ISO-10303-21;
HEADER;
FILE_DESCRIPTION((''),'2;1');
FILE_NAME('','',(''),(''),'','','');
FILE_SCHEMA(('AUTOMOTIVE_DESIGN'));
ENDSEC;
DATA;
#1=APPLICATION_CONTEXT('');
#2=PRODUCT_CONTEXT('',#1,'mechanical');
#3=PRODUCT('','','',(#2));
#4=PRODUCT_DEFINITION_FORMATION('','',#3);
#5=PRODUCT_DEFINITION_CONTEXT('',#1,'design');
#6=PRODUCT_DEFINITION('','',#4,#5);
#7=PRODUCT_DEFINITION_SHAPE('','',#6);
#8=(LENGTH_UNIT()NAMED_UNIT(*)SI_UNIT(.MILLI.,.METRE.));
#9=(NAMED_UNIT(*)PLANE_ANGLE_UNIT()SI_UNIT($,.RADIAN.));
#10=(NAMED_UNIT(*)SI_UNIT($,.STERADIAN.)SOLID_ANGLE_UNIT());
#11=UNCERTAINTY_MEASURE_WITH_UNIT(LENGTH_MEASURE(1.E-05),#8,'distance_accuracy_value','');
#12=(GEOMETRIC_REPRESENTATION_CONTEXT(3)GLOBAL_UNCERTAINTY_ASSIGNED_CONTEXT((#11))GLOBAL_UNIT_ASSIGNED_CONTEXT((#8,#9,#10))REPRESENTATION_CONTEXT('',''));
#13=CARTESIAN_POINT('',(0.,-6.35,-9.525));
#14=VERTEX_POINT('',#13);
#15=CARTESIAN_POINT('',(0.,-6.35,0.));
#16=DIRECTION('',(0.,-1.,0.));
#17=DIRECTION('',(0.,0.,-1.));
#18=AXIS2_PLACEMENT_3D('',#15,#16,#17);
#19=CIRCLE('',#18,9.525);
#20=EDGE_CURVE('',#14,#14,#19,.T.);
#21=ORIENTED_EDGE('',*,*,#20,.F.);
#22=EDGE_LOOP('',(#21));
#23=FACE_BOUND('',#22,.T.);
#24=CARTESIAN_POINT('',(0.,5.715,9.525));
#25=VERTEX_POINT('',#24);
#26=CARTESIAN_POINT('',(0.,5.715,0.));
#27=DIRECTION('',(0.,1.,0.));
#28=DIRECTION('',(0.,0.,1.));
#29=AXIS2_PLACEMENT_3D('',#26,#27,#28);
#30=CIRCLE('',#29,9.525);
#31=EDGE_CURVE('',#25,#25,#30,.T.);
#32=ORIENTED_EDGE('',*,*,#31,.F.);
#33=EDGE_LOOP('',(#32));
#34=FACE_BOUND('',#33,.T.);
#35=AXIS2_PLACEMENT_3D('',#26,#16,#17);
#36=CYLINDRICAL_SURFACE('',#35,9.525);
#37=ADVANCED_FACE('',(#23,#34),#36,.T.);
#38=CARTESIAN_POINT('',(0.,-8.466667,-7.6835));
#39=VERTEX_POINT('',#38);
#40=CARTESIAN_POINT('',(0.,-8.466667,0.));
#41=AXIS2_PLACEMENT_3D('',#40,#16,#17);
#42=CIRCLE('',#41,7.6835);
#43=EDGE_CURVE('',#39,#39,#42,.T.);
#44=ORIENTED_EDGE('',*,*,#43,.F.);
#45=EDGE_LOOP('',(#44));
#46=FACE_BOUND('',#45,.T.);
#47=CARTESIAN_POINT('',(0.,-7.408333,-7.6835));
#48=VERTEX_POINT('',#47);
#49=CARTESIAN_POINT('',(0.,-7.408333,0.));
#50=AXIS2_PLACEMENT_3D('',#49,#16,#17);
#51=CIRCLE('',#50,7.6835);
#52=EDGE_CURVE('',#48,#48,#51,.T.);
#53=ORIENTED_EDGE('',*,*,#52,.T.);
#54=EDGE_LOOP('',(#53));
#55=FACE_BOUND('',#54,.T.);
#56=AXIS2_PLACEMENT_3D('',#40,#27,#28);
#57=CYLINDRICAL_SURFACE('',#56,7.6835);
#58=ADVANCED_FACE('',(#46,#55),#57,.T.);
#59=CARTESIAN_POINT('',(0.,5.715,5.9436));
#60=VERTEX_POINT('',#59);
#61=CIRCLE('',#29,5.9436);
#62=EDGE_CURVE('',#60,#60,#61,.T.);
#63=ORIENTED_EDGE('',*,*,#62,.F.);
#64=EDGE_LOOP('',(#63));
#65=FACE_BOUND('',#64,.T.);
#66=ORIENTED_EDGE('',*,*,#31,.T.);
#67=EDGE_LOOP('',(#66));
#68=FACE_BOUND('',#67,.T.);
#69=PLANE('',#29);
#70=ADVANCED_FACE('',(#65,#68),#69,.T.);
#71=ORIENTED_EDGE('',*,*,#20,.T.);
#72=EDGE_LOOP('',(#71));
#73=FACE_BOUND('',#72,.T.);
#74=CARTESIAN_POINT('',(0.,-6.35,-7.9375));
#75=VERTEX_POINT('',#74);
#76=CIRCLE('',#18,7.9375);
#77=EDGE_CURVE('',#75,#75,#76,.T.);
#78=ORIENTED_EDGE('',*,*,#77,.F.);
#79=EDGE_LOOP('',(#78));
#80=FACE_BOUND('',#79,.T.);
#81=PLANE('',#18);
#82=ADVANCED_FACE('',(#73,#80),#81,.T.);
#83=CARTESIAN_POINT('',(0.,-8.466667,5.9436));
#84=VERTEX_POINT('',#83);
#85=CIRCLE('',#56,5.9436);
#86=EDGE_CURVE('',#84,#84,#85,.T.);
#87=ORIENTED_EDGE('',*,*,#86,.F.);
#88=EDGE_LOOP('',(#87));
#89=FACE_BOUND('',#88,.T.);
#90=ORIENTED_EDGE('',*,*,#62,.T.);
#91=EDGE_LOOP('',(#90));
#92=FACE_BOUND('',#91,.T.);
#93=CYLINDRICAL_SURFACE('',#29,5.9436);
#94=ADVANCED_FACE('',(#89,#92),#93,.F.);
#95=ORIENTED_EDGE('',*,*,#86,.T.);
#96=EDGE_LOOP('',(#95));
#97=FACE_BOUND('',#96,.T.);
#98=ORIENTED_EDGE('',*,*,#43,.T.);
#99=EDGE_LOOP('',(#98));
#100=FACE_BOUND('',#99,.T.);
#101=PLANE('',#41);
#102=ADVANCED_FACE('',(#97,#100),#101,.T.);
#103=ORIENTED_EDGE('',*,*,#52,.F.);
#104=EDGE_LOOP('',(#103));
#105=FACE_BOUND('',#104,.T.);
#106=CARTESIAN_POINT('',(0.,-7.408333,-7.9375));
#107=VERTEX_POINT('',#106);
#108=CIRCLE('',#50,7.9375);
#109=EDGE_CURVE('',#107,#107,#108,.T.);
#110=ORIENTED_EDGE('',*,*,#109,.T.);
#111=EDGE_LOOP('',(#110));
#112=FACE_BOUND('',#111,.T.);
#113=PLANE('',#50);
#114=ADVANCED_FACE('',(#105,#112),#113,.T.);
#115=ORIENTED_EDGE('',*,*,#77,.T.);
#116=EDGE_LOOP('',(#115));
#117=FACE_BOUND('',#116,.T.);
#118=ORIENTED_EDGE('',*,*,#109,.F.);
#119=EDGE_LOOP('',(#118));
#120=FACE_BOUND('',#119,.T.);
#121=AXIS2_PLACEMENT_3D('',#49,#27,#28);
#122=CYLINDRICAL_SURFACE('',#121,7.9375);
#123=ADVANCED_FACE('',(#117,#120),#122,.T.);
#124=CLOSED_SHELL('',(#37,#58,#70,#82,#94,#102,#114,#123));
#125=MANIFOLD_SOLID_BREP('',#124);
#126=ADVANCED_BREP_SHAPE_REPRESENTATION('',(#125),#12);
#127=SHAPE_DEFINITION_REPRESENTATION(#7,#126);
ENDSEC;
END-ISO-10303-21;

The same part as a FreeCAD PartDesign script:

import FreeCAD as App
import Part
import Sketcher

V = App.Vector
Q = App.Units.Quantity


def add_polygon(sketch, points):
    """Adds a closed chain of lines whose ends are joined by coincident constraints."""
    first, n = sketch.GeometryCount, len(points)
    for a, b in zip(points, points[1:] + points[:1]):
        sketch.addGeometry(Part.LineSegment(App.Vector(*a, 0), App.Vector(*b, 0)), False)
    for i in range(n):
        sketch.addConstraint(Sketcher.Constraint("Coincident", first + i, 2, first + (i + 1) % n, 1))

doc = App.newDocument("Part")
params = doc.addObject("Spreadsheet::Sheet", "Params")
for row, (alias, value) in enumerate([
    ("sketch1_diameter", "0.75 in"),
    ("pad1_length", "0.225 in"),
    ("pad2_length", "0.25 in"),
    ("sketch3_diameter", "0.625 in"),
    ("pad3_length", "1.058333 mm"),
    ("sketch4_diameter", "0.605 in"),
    ("pad4_length", "1.058333 mm"),
    ("sketch5_diameter", "0.468 in"),
    ("hole_diameter", "0.468 in"),
    ("sketch6_diameter", "0.75 in"),
], start=1):
    params.set(f"A{row}", alias)
    params.set(f"B{row}", "=" + value)
    params.setAlias(f"B{row}", alias)

body = doc.addObject("PartDesign::Body", "Body")

sketch1 = body.newObject("Sketcher::SketchObject", "Sketch")
sketch1.AttachmentSupport = (doc.getObject("XZ_Plane"), [""])
sketch1.MapMode = "FlatFace"
sketch1.addGeometry(Part.Circle(V(0, 0, 0), V(0, 0, 1), 10), False)
sketch1.addConstraint([
    Sketcher.Constraint("Coincident", 0, 3, -1, 1),
    Sketcher.Constraint("Diameter", 0, Q("0.75 in")),
])
sketch1.setExpression("Constraints[1]", "Params.sketch1_diameter")
pad1 = body.newObject("PartDesign::Pad", "Pad")
pad1.Profile = sketch1
pad1.setExpression("Length", "Params.pad1_length")
pad1.Reversed = True

sketch2 = body.newObject("Sketcher::SketchObject", "Sketch001")
sketch2.AttachmentSupport = (doc.getObject("XZ_Plane"), [""])
sketch2.MapMode = "FlatFace"
add_polygon(sketch2, [(0, -11), (10, -5), (10, 5), (0, 11), (-10, 5), (-10, -5)])
sketch2.addConstraint([
    Sketcher.Constraint("Vertical", 1),
    Sketcher.Constraint("Vertical", 4),
    Sketcher.Constraint("Symmetric", 0, 2, 3, 2, -1, 1),
    Sketcher.Constraint("Symmetric", 2, 2, 5, 2, -1, 1),
    Sketcher.Constraint("PointOnObject", 2, 2, -2),
    Sketcher.Constraint("Parallel", 2, 5),
    Sketcher.Constraint("Horizontal", 1, 2, 3, 2),
    Sketcher.Constraint("Angle", 0, Q("30 deg")),
    Sketcher.Constraint("DistanceX", 3, 2, 1, 2, Q("0.75 in")),
    Sketcher.Constraint("DistanceY", 1, 1, 1, 2, 10.998523),
])
pad2 = body.newObject("PartDesign::Pad", "Pad001")
pad2.Profile = sketch2
pad2.setExpression("Length", "Params.pad2_length")

sketch3 = body.newObject("Sketcher::SketchObject", "Sketch002")
sketch3.AttachmentSupport = (doc.getObject("XZ_Plane"), [""])
sketch3.MapMode = "FlatFace"
sketch3.AttachmentOffset = App.Placement(V(0, 0, 0.25 * 25.4), App.Rotation())
sketch3.addGeometry(Part.Circle(V(0, 0, 0), V(0, 0, 1), 8), False)
sketch3.addConstraint([
    Sketcher.Constraint("Coincident", 0, 3, -1, 1),
    Sketcher.Constraint("Diameter", 0, Q("0.625 in")),
])
sketch3.setExpression("Constraints[1]", "Params.sketch3_diameter")
pad3 = body.newObject("PartDesign::Pad", "Pad002")
pad3.Profile = sketch3
pad3.setExpression("Length", "Params.pad3_length")

sketch4 = body.newObject("Sketcher::SketchObject", "Sketch003")
sketch4.AttachmentSupport = (doc.getObject("XZ_Plane"), [""])
sketch4.MapMode = "FlatFace"
sketch4.AttachmentOffset = App.Placement(V(0, 0, 7.408333), App.Rotation())
sketch4.addGeometry(Part.Circle(V(0, 0, 0), V(0, 0, 1), 8), False)
sketch4.addConstraint([
    Sketcher.Constraint("Coincident", 0, 3, -1, 1),
    Sketcher.Constraint("Diameter", 0, Q("0.605 in")),
])
sketch4.setExpression("Constraints[1]", "Params.sketch4_diameter")
pad4 = body.newObject("PartDesign::Pad", "Pad003")
pad4.Profile = sketch4
pad4.setExpression("Length", "Params.pad4_length")

sketch5 = body.newObject("Sketcher::SketchObject", "Sketch004")
sketch5.AttachmentSupport = (doc.getObject("XZ_Plane"), [""])
sketch5.MapMode = "FlatFace"
sketch5.AttachmentOffset = App.Placement(V(0, 0, -0.225 * 25.4), App.Rotation())
sketch5.addGeometry(Part.Circle(V(0, 0, 0), V(0, 0, 1), 6), False)
sketch5.addConstraint([
    Sketcher.Constraint("Coincident", 0, 3, -1, 1),
    Sketcher.Constraint("Diameter", 0, Q("0.468 in")),
])
sketch5.setExpression("Constraints[1]", "Params.sketch5_diameter")
doc.recompute()
hole = body.newObject("PartDesign::Hole", "Hole")
hole.Profile = sketch5
hole.ThreadType = "None"
hole.setExpression("Diameter", "Params.hole_diameter")
hole.DepthType = "ThroughAll"
hole.Reversed = True

sketch6 = body.newObject("Sketcher::SketchObject", "Sketch005")
sketch6.AttachmentSupport = (doc.getObject("XZ_Plane"), [""])
sketch6.MapMode = "FlatFace"
sketch6.AttachmentOffset = App.Placement(V(0, 0, -0.225 * 25.4), App.Rotation())
sketch6.addGeometry([
    Part.Circle(V(0, 0, 0), V(0, 0, 1), 11),
    Part.Circle(V(0, 0, 0), V(0, 0, 1), 10),
], False)
sketch6.addConstraint([
    Sketcher.Constraint("Coincident", 0, 3, -1, 1),
    Sketcher.Constraint("Coincident", 1, 3, -1, 1),
    Sketcher.Constraint("Diameter", 1, Q("0.75 in")),
    Sketcher.Constraint("Diameter", 0, 21.997045),
])
sketch6.setExpression("Constraints[2]", "Params.sketch6_diameter")
pocket1 = body.newObject("PartDesign::Pocket", "Pocket")
pocket1.Profile = sketch6
pocket1.Type = "ThroughAll"
pocket1.Reversed = True

doc.recompute()
